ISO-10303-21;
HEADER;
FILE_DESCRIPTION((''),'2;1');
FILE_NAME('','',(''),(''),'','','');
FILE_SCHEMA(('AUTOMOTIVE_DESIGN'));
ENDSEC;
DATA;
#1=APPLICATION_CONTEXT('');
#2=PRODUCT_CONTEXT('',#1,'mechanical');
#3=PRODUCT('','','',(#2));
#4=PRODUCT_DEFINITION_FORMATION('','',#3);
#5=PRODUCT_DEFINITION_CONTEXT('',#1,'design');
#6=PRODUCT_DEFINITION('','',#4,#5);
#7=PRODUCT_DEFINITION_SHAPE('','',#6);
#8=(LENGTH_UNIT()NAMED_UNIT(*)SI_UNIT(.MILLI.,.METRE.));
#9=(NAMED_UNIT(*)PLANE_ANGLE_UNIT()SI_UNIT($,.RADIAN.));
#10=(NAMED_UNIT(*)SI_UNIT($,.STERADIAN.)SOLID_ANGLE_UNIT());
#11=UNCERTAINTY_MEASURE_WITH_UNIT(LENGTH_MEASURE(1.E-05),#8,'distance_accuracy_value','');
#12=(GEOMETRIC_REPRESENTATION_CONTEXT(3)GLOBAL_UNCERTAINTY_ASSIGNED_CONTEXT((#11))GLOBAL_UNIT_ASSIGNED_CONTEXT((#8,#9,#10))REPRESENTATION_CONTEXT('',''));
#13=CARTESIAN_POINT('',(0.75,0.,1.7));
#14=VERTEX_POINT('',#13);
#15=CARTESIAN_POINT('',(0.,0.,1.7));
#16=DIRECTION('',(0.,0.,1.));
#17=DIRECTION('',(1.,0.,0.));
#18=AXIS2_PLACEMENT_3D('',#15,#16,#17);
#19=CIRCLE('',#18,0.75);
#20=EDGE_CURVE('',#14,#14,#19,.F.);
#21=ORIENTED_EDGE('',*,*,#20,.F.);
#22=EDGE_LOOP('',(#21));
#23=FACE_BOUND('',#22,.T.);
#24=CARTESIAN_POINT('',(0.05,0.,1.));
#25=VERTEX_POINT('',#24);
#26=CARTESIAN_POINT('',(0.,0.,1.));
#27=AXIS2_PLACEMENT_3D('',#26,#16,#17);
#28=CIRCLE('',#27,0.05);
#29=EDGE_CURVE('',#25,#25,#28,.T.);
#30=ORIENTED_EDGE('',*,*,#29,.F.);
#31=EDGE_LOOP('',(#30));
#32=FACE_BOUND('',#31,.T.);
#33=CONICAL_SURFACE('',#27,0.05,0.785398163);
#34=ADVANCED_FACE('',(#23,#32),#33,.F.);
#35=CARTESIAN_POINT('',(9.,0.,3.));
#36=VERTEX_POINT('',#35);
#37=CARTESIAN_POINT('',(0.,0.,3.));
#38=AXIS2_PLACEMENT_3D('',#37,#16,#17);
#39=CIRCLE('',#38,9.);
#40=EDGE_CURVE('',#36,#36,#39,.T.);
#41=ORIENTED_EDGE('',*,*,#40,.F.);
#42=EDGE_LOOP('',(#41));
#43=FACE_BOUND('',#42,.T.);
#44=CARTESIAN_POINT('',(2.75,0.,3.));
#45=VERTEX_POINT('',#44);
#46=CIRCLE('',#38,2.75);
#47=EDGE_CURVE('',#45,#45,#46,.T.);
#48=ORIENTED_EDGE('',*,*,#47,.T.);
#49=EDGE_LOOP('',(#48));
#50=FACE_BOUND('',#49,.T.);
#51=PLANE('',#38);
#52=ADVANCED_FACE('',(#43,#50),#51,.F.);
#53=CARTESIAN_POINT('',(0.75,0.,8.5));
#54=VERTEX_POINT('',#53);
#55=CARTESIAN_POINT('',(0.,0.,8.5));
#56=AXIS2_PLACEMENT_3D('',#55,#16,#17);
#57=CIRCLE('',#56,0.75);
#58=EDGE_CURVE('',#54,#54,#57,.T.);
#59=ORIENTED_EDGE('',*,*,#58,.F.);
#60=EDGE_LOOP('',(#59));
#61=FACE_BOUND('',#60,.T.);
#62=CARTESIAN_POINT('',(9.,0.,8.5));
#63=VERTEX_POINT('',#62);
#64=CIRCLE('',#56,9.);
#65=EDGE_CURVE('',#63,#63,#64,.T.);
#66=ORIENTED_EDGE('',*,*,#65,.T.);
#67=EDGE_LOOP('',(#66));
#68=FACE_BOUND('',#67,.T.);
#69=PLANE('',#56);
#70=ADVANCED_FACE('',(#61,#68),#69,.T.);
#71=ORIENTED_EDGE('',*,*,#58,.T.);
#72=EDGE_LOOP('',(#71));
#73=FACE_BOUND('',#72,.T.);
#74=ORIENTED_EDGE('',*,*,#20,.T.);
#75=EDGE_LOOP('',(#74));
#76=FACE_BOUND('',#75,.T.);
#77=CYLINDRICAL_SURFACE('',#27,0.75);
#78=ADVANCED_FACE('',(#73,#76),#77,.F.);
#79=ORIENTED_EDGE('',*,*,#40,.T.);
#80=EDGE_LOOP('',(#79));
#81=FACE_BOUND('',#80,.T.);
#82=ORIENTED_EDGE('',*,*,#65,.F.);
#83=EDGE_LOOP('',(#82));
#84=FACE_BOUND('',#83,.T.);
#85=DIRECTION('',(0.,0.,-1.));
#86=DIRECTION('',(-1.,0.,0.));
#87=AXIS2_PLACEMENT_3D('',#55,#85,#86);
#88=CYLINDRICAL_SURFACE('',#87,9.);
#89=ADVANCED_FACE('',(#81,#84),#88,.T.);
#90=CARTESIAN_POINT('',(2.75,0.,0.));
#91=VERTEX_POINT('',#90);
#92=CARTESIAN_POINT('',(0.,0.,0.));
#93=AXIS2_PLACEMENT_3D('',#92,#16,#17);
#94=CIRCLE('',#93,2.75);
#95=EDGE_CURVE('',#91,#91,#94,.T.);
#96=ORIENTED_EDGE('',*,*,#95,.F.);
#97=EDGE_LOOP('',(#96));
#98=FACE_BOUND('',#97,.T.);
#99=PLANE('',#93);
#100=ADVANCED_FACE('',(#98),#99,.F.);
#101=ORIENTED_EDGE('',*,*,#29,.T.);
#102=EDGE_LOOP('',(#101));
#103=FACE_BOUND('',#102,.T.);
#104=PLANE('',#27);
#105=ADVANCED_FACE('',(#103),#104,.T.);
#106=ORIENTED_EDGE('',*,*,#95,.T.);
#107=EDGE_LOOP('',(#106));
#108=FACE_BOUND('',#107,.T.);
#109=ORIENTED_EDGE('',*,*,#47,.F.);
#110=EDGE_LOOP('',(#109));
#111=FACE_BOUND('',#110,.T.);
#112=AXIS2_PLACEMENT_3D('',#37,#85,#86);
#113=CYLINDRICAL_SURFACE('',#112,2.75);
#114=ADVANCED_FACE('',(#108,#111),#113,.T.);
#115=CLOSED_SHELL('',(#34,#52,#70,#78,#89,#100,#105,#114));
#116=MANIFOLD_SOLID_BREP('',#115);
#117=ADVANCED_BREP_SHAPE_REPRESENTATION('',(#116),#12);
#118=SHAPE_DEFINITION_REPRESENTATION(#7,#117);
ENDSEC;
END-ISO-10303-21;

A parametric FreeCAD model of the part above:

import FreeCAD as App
import Part
import Sketcher
from FreeCAD import Vector


def edges_at(feature, points):
    """Names of the edges that pass closest to the given points."""
    edges = feature.Shape.Edges
    near = lambda p: min(range(len(edges)), key=lambda i: edges[i].distToShape(Part.Vertex(*p))[0])
    return sorted({f"Edge{near(p) + 1}" for p in points})

doc = App.newDocument("Part")
body = doc.addObject("PartDesign::Body", "Body")

# Sketch on XY plane
sketch1 = doc.addObject("Sketcher::SketchObject", "Sketch")
body.addObject(sketch1)
sketch1.AttachmentSupport = (doc.XY_Plane, [""])
sketch1.MapMode = "FlatFace"
sketch1.addGeometry(Part.Circle(Vector(0, 0, 0), Vector(0, 0, 1), 2.8), False)
sketch1.addConstraint([
    Sketcher.Constraint("Coincident", 0, 3, -1, 1),
    Sketcher.Constraint("Diameter", 0, 5.5),
])
pad1 = doc.addObject("PartDesign::Pad", "Pad")
body.addObject(pad1)
pad1.Profile = sketch1
pad1.Length = 3

# Sketch on XY plane
sketch2 = doc.addObject("Sketcher::SketchObject", "Sketch001")
body.addObject(sketch2)
sketch2.AttachmentSupport = (doc.XY_Plane, [""])
sketch2.MapMode = "FlatFace"
sketch2.AttachmentOffset = App.Placement(Vector(0, 0, 3), App.Rotation())
sketch2.addGeometry(Part.Circle(Vector(0, 0, 0), Vector(0, 0, 1), 9), False)
sketch2.addConstraint([
    Sketcher.Constraint("Coincident", 0, 3, -1, 1),
    Sketcher.Constraint("Diameter", 0, 18.0),
])
pad2 = doc.addObject("PartDesign::Pad", "Pad001")
body.addObject(pad2)
pad2.Profile = sketch2
pad2.Length = 5.5

# Sketch on XY plane
sketch3 = doc.addObject("Sketcher::SketchObject", "Sketch002")
body.addObject(sketch3)
sketch3.AttachmentSupport = (doc.XY_Plane, [""])
sketch3.MapMode = "FlatFace"
sketch3.AttachmentOffset = App.Placement(Vector(0, 0, 8.5), App.Rotation())
sketch3.addGeometry(Part.Circle(Vector(0, 0, 0), Vector(0, 0, 1), 0.8), False)
sketch3.addConstraint([
    Sketcher.Constraint("Coincident", 0, 3, -1, 1),
    Sketcher.Constraint("Diameter", 0, 1.5),
])
pocket1 = doc.addObject("PartDesign::Pocket", "Pocket")
body.addObject(pocket1)
pocket1.Profile = sketch3
pocket1.Length = 7.5
doc.recompute()

chamfer = doc.addObject("PartDesign::Chamfer", "Chamfer")
body.addObject(chamfer)
chamfer.Base = (pocket1, edges_at(pocket1, [(-0.75, 0, 1)]))
chamfer.Size = 0.7

doc.recompute()
